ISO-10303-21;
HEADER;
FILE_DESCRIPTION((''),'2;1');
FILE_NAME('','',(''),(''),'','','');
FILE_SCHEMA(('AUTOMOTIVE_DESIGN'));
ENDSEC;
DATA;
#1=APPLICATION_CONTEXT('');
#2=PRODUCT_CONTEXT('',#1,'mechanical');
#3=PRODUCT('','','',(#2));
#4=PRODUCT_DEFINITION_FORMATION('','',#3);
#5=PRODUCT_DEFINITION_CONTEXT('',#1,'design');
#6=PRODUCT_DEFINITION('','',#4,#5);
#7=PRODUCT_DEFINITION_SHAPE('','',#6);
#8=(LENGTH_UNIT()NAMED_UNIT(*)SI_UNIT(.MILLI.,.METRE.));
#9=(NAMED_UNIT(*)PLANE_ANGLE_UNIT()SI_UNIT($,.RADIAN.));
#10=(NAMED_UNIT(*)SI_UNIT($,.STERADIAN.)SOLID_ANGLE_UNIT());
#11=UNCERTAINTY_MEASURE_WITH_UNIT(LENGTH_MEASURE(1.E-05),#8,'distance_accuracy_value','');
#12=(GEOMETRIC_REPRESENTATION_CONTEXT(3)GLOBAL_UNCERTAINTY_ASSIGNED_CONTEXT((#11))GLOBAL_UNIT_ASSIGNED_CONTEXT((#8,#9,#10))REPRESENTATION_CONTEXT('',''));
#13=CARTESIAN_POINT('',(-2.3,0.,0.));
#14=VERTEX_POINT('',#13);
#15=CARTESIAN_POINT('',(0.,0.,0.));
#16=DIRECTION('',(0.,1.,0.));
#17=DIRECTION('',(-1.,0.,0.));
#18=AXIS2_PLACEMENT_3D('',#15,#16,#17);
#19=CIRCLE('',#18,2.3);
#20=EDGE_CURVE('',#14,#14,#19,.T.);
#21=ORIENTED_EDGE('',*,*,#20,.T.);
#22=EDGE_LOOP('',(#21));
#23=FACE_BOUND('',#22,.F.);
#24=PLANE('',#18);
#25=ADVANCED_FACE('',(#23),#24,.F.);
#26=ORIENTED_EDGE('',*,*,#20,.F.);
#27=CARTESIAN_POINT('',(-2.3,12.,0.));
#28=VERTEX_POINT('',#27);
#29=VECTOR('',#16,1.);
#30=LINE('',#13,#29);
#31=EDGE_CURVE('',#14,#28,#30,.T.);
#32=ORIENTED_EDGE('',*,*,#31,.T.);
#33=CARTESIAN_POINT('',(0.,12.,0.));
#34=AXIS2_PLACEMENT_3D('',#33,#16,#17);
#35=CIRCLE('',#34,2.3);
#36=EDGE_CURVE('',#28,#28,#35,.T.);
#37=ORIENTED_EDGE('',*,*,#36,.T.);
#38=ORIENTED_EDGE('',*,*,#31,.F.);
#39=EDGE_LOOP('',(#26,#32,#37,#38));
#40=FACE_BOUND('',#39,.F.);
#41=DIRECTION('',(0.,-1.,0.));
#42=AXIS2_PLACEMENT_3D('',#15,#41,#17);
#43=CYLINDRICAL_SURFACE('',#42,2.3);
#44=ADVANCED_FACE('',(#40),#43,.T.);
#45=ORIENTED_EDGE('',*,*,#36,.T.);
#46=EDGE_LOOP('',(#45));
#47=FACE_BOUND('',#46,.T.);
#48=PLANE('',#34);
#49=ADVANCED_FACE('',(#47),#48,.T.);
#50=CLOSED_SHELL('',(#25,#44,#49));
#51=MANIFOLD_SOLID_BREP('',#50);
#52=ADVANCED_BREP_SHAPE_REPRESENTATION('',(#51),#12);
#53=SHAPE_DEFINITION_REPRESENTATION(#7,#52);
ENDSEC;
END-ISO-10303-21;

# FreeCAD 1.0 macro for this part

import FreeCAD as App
import Part
import Sketcher

doc = App.newDocument("Part")
body = doc.addObject("PartDesign::Body", "Body")

# Sketch on XZ plane
sketch1 = body.newObject("Sketcher::SketchObject", "Sketch")
sketch1.AttachmentSupport = (doc.getObject("XZ_Plane"), [""])
sketch1.MapMode = "FlatFace"
sketch1.addGeometry(Part.Circle(App.Vector(0, 0, 0), App.Vector(0, 0, 1), 2.3), False)
sketch1.addConstraint([
    Sketcher.Constraint("Coincident", 0, 3, -1, 1),
    Sketcher.Constraint("Diameter", 0, 4.6),
])
pad1 = body.newObject("PartDesign::Pad", "Pad")
pad1.Profile = sketch1
pad1.Length = 12
pad1.Reversed = True

doc.recompute()
